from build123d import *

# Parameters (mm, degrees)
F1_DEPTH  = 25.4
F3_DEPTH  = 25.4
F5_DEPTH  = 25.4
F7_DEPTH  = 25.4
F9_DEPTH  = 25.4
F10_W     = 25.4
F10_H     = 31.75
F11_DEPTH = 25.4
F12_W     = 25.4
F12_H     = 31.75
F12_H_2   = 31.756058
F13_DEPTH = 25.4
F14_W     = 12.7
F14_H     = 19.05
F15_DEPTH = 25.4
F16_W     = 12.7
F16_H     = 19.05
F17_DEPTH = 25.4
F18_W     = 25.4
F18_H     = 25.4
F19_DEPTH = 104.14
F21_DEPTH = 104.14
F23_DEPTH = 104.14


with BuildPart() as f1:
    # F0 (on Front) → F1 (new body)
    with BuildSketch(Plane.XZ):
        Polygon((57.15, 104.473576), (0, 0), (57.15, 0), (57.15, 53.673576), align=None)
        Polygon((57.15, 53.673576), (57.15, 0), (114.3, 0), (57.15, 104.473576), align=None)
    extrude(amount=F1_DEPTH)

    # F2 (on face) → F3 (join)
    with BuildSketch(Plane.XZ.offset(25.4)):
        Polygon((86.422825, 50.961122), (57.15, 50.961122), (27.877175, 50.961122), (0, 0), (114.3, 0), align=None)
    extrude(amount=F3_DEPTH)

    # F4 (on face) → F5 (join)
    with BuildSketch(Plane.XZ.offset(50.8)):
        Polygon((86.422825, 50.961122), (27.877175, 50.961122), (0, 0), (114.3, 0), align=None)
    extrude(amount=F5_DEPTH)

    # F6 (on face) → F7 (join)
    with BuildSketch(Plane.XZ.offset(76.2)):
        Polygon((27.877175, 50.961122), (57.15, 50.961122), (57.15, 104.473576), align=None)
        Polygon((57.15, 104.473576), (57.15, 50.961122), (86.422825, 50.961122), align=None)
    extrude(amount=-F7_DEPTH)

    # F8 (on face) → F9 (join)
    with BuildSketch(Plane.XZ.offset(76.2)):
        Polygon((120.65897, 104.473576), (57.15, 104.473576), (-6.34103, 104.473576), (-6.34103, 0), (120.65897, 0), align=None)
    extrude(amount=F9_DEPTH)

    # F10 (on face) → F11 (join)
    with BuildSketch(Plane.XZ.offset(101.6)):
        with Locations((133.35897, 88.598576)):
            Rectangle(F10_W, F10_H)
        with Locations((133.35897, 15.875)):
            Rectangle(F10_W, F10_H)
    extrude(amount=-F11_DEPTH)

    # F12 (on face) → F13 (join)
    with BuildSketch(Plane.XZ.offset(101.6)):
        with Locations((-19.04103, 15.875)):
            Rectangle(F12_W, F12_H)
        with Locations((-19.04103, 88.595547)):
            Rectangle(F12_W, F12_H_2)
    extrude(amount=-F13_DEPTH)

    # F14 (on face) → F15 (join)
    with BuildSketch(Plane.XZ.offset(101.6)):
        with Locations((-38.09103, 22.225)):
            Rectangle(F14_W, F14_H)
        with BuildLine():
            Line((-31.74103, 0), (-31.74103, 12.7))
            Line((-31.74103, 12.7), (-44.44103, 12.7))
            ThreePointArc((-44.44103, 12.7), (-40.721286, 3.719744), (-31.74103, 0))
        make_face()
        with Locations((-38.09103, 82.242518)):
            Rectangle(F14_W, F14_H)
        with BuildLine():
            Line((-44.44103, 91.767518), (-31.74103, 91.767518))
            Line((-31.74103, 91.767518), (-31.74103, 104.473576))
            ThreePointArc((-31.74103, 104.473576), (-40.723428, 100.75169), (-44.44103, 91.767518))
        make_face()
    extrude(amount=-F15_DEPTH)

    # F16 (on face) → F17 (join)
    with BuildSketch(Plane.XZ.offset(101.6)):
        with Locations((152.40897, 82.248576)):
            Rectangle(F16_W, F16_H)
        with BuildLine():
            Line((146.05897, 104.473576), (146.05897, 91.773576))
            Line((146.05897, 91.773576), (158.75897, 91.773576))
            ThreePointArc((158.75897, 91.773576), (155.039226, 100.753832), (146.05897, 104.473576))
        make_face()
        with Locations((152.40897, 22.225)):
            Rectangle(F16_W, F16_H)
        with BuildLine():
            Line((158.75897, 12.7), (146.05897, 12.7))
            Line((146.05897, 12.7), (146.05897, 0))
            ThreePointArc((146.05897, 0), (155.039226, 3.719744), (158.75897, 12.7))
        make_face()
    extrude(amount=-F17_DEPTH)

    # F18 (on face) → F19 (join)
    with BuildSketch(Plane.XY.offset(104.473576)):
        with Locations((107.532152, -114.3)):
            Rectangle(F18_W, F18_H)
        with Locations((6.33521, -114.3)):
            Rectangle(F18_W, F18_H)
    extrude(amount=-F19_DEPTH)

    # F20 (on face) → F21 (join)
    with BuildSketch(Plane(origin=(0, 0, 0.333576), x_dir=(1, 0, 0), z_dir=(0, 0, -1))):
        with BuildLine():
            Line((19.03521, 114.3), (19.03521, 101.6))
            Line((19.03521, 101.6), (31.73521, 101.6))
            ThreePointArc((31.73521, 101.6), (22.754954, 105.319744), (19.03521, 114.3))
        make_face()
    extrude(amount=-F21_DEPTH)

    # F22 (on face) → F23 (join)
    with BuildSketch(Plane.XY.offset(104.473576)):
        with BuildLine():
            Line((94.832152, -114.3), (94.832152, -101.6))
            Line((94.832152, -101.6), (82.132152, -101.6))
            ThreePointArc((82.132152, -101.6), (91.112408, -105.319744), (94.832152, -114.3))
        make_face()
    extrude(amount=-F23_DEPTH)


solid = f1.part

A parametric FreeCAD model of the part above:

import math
import FreeCAD as App
import Part
import Sketcher
Q = App.Units.Quantity


def add_polygon(sketch, points):
    """Adds a closed chain of lines whose ends are joined by coincident constraints."""
    first, n = sketch.GeometryCount, len(points)
    for a, b in zip(points, points[1:] + points[:1]):
        sketch.addGeometry(Part.LineSegment(App.Vector(*a, 0), App.Vector(*b, 0)), False)
    for i in range(n):
        sketch.addConstraint(Sketcher.Constraint("Coincident", first + i, 2, first + (i + 1) % n, 1))

doc = App.newDocument("Part")
body = doc.addObject("PartDesign::Body", "Body")

sketch1 = body.newObject("Sketcher::SketchObject", "Sketch")
sketch1.AttachmentSupport = (doc.getObject("XZ_Plane"), [""])
sketch1.MapMode = "FlatFace"
add_polygon(sketch1, [(57, 104), (0, 0), (114, 0)])
sketch1.addConstraint(Sketcher.Constraint("Horizontal", 1))
sketch1.addConstraint(Sketcher.Constraint("Coincident", 0, 2, -1, 1))
sketch1.addConstraint(Sketcher.Constraint("Equal", 0, 2))
sketch1.addConstraint(Sketcher.Constraint("DistanceX", 1, 1, 1, 2, Q("4.5 in")))
sketch1.addConstraint(Sketcher.Constraint("Distance", 0, 119.083377))
pad1 = body.newObject("PartDesign::Pad", "Pad")
pad1.Profile = sketch1
pad1.Length = Q("1 in")

sketch2 = body.newObject("Sketcher::SketchObject", "Sketch001")
sketch2.AttachmentSupport = (doc.getObject("XZ_Plane"), [""])
sketch2.MapMode = "FlatFace"
sketch2.AttachmentOffset = App.Placement(App.Vector(0, 0, 1 * 25.4), App.Rotation())
add_polygon(sketch2, [(86, 51), (28, 51), (0, 0), (114, 0)])
sketch2.addConstraint(Sketcher.Constraint("Horizontal", 0))
sketch2.addConstraint(Sketcher.Constraint("Horizontal", 2))
sketch2.addConstraint(Sketcher.Constraint("Coincident", 1, 2, -1, 1))
sketch2.addConstraint(Sketcher.Constraint("Equal", 1, 3))
sketch2.addConstraint(Sketcher.Constraint("DistanceX", 2, 1, 2, 2, Q("4.5 in")))
sketch2.addConstraint(Sketcher.Constraint("DistanceX", 0, 2, 0, 1, 58.54565))
sketch2.addConstraint(Sketcher.Constraint("Distance", 1, 58.087631))
pad2 = body.newObject("PartDesign::Pad", "Pad001")
pad2.Profile = sketch2
pad2.Length = Q("1 in")

sketch3 = body.newObject("Sketcher::SketchObject", "Sketch002")
sketch3.AttachmentSupport = (doc.getObject("XZ_Plane"), [""])
sketch3.MapMode = "FlatFace"
sketch3.AttachmentOffset = App.Placement(App.Vector(0, 0, 2 * 25.4), App.Rotation())
add_polygon(sketch3, [(86, 51), (28, 51), (0, 0), (114, 0)])
sketch3.addConstraint(Sketcher.Constraint("Horizontal", 0))
sketch3.addConstraint(Sketcher.Constraint("Horizontal", 2))
sketch3.addConstraint(Sketcher.Constraint("Coincident", 1, 2, -1, 1))
sketch3.addConstraint(Sketcher.Constraint("Equal", 1, 3))
sketch3.addConstraint(Sketcher.Constraint("DistanceX", 2, 1, 2, 2, Q("4.5 in")))
sketch3.addConstraint(Sketcher.Constraint("DistanceX", 0, 2, 0, 1, 58.54565))
sketch3.addConstraint(Sketcher.Constraint("Distance", 1, 58.087631))
pad3 = body.newObject("PartDesign::Pad", "Pad002")
pad3.Profile = sketch3
pad3.Length = Q("1 in")

sketch4 = body.newObject("Sketcher::SketchObject", "Sketch003")
sketch4.AttachmentSupport = (doc.getObject("XZ_Plane"), [""])
sketch4.MapMode = "FlatFace"
sketch4.AttachmentOffset = App.Placement(App.Vector(0, 0, 3 * 25.4), App.Rotation())
add_polygon(sketch4, [(28, 51), (86, 51), (57, 104)])
sketch4.addConstraint(Sketcher.Constraint("Horizontal", 0))
sketch4.addConstraint(Sketcher.Constraint("Equal", 1, 2))
sketch4.addConstraint(Sketcher.Constraint("DistanceX", -1, 1, 1, 2, Q("2.25 in")))
sketch4.addConstraint(Sketcher.Constraint("DistanceX", 0, 1, 0, 2, 58.54565))
sketch4.addConstraint(Sketcher.Constraint("Distance", 1, 60.995746))
sketch4.addConstraint(Sketcher.Constraint("DistanceY", -1, 1, 0, 2, 50.961122))
pad4 = body.newObject("PartDesign::Pad", "Pad003")
pad4.Profile = sketch4
pad4.Length = Q("1 in")
pad4.Reversed = True

sketch5 = body.newObject("Sketcher::SketchObject", "Sketch004")
sketch5.AttachmentSupport = (doc.getObject("XZ_Plane"), [""])
sketch5.MapMode = "FlatFace"
sketch5.AttachmentOffset = App.Placement(App.Vector(0, 0, 3 * 25.4), App.Rotation())
add_polygon(sketch5, [(121, 104), (-6, 104), (-6, 0), (121, 0)])
sketch5.addConstraint(Sketcher.Constraint("Horizontal", 0))
sketch5.addConstraint(Sketcher.Constraint("Vertical", 1))
sketch5.addConstraint(Sketcher.Constraint("Horizontal", 2))
sketch5.addConstraint(Sketcher.Constraint("Vertical", 3))
sketch5.addConstraint(Sketcher.Constraint("PointOnObject", 1, 2, -1))
sketch5.addConstraint(Sketcher.Constraint("DistanceX", 0, 2, 0, 1, Q("5 in")))
sketch5.addConstraint(Sketcher.Constraint("DistanceY", 1, 2, 1, 1, 104.473576))
sketch5.addConstraint(Sketcher.Constraint("DistanceX", 0, 2, -1, 1, 6.34103))
pad5 = body.newObject("PartDesign::Pad", "Pad004")
pad5.Profile = sketch5
pad5.Length = Q("1 in")

sketch6 = body.newObject("Sketcher::SketchObject", "Sketch005")
sketch6.AttachmentSupport = (doc.getObject("XZ_Plane"), [""])
sketch6.MapMode = "FlatFace"
sketch6.AttachmentOffset = App.Placement(App.Vector(0, 0, 4 * 25.4), App.Rotation())
add_polygon(sketch6, [(121, 104), (121, 73), (146, 73), (146, 104)])
add_polygon(sketch6, [(121, 32), (121, 0), (146, 0), (146, 32)])
sketch6.addConstraint(Sketcher.Constraint("Vertical", 0))
sketch6.addConstraint(Sketcher.Constraint("Horizontal", 1))
sketch6.addConstraint(Sketcher.Constraint("Vertical", 2))
sketch6.addConstraint(Sketcher.Constraint("Horizontal", 3))
sketch6.addConstraint(Sketcher.Constraint("Vertical", 4))
sketch6.addConstraint(Sketcher.Constraint("Horizontal", 5))
sketch6.addConstraint(Sketcher.Constraint("Vertical", 6))
sketch6.addConstraint(Sketcher.Constraint("Horizontal", 7))
sketch6.addConstraint(Sketcher.Constraint("PointOnObject", 4, 2, -1))
sketch6.addConstraint(Sketcher.Constraint("Vertical", 3, 2, 4, 2))
sketch6.addConstraint(Sketcher.Constraint("Vertical", 2, 2, 5, 2))
sketch6.addConstraint(Sketcher.Constraint("Equal", 2, 4))
sketch6.addConstraint(Sketcher.Constraint("DistanceX", 1, 1, 1, 2, Q("1 in")))
sketch6.addConstraint(Sketcher.Constraint("DistanceY", 0, 2, 0, 1, Q("1.25 in")))
sketch6.addConstraint(Sketcher.Constraint("DistanceX", -1, 1, 0, 2, 120.65897))
sketch6.addConstraint(Sketcher.Constraint("DistanceY", -1, 1, 0, 2, 72.723576))
pad6 = body.newObject("PartDesign::Pad", "Pad005")
pad6.Profile = sketch6
pad6.Length = Q("1 in")
pad6.Reversed = True

sketch7 = body.newObject("Sketcher::SketchObject", "Sketch006")
sketch7.AttachmentSupport = (doc.getObject("XZ_Plane"), [""])
sketch7.MapMode = "FlatFace"
sketch7.AttachmentOffset = App.Placement(App.Vector(0, 0, 4 * 25.4), App.Rotation())
add_polygon(sketch7, [(-32, 32), (-32, 0), (-6, 0), (-6, 32)])
add_polygon(sketch7, [(-32, 104), (-32, 73), (-6, 73), (-6, 104)])
sketch7.addConstraint(Sketcher.Constraint("Vertical", 0))
sketch7.addConstraint(Sketcher.Constraint("Horizontal", 1))
sketch7.addConstraint(Sketcher.Constraint("Vertical", 2))
sketch7.addConstraint(Sketcher.Constraint("Horizontal", 3))
sketch7.addConstraint(Sketcher.Constraint("Vertical", 4))
sketch7.addConstraint(Sketcher.Constraint("Horizontal", 5))
sketch7.addConstraint(Sketcher.Constraint("Vertical", 6))
sketch7.addConstraint(Sketcher.Constraint("Horizontal", 7))
sketch7.addConstraint(Sketcher.Constraint("PointOnObject", 0, 2, -1))
sketch7.addConstraint(Sketcher.Constraint("Vertical", 3, 2, 4, 2))
sketch7.addConstraint(Sketcher.Constraint("Vertical", 2, 2, 5, 2))
sketch7.addConstraint(Sketcher.Constraint("DistanceX", 1, 1, 1, 2, Q("1 in")))
sketch7.addConstraint(Sketcher.Constraint("DistanceY", 0, 2, 0, 1, Q("1.25 in")))
sketch7.addConstraint(Sketcher.Constraint("DistanceY", 4, 2, 4, 1, 31.756058))
sketch7.addConstraint(Sketcher.Constraint("DistanceX", 0, 2, -1, 1, 31.74103))
sketch7.addConstraint(Sketcher.Constraint("DistanceY", -1, 1, 4, 2, 72.717518))
pad7 = body.newObject("PartDesign::Pad", "Pad006")
pad7.Profile = sketch7
pad7.Length = Q("1 in")
pad7.Reversed = True

sketch8 = body.newObject("Sketcher::SketchObject", "Sketch007")
sketch8.AttachmentSupport = (doc.getObject("XZ_Plane"), [""])
sketch8.MapMode = "FlatFace"
sketch8.AttachmentOffset = App.Placement(App.Vector(0, 0, 4 * 25.4), App.Rotation())
sketch8.addGeometry(Part.LineSegment(App.Vector(-44, 32, 0), App.Vector(-44, 13, 0)), False)
sketch8.addGeometry(Part.ArcOfCircle(Part.Circle(App.Vector(-32, 13, 0), App.Vector(0, 0, 1), 13), math.radians(-180), math.radians(-90)), False)
sketch8.addGeometry(Part.LineSegment(App.Vector(-32, 0, 0), App.Vector(-32, 32, 0)), False)
sketch8.addGeometry(Part.LineSegment(App.Vector(-32, 32, 0), App.Vector(-44, 32, 0)), False)
sketch8.addGeometry(Part.LineSegment(App.Vector(-44, 92, 0), App.Vector(-44, 73, 0)), False)
sketch8.addGeometry(Part.LineSegment(App.Vector(-44, 73, 0), App.Vector(-32, 73, 0)), False)
sketch8.addGeometry(Part.LineSegment(App.Vector(-32, 73, 0), App.Vector(-32, 104, 0)), False)
sketch8.addGeometry(Part.ArcOfCircle(Part.Circle(App.Vector(-32, 92, 0), App.Vector(0, 0, 1), 13), math.radians(90), math.radians(180)), False)
sketch8.addConstraint(Sketcher.Constraint("Tangent", 0, 2, 1, 1))
sketch8.addConstraint(Sketcher.Constraint("Coincident", 1, 2, 2, 1))
sketch8.addConstraint(Sketcher.Constraint("Coincident", 2, 2, 3, 1))
sketch8.addConstraint(Sketcher.Constraint("Coincident", 3, 2, 0, 1))
sketch8.addConstraint(Sketcher.Constraint("Coincident", 4, 2, 5, 1))
sketch8.addConstraint(Sketcher.Constraint("Coincident", 5, 2, 6, 1))
sketch8.addConstraint(Sketcher.Constraint("Coincident", 6, 2, 7, 1))
sketch8.addConstraint(Sketcher.Constraint("Coincident", 7, 2, 4, 1))
sketch8.addConstraint(Sketcher.Constraint("Vertical", 0))
sketch8.addConstraint(Sketcher.Constraint("Vertical", 2))
sketch8.addConstraint(Sketcher.Constraint("Horizontal", 3))
sketch8.addConstraint(Sketcher.Constraint("Vertical", 4))
sketch8.addConstraint(Sketcher.Constraint("Horizontal", 5))
sketch8.addConstraint(Sketcher.Constraint("Vertical", 6))
sketch8.addConstraint(Sketcher.Constraint("Equal", 1, 7))
sketch8.addConstraint(Sketcher.Constraint("PointOnObject", 1, 2, -1))
sketch8.addConstraint(Sketcher.Constraint("Vertical", 1, 3, 7, 3))
sketch8.addConstraint(Sketcher.Constraint("Vertical", 7, 3, 1, 2))
sketch8.addConstraint(Sketcher.Constraint("Vertical", 2, 2, 5, 2))
sketch8.addConstraint(Sketcher.Constraint("Equal", 0, 4))
sketch8.addConstraint(Sketcher.Constraint("Radius", 1, Q("0.5 in")))
sketch8.addConstraint(Sketcher.Constraint("DistanceY", 0, 2, 0, 1, Q("0.75 in")))
sketch8.addConstraint(Sketcher.Constraint("DistanceY", 6, 1, 6, 2, 31.756058))
sketch8.addConstraint(Sketcher.Constraint("DistanceX", 1, 3, -1, 1, 31.74103))
sketch8.addConstraint(Sketcher.Constraint("DistanceY", -1, 1, 4, 2, 72.717518))
pad8 = body.newObject("PartDesign::Pad", "Pad007")
pad8.Profile = sketch8
pad8.Length = Q("1 in")
pad8.Reversed = True

sketch9 = body.newObject("Sketcher::SketchObject", "Sketch008")
sketch9.AttachmentSupport = (doc.getObject("XZ_Plane"), [""])
sketch9.MapMode = "FlatFace"
sketch9.AttachmentOffset = App.Placement(App.Vector(0, 0, 4 * 25.4), App.Rotation())
sketch9.addGeometry(Part.LineSegment(App.Vector(146, 73, 0), App.Vector(159, 73, 0)), False)
sketch9.addGeometry(Part.LineSegment(App.Vector(159, 73, 0), App.Vector(159, 92, 0)), False)
sketch9.addGeometry(Part.ArcOfCircle(Part.Circle(App.Vector(146, 92, 0), App.Vector(0, 0, 1), 13), math.radians(0), math.radians(90)), False)
sketch9.addGeometry(Part.LineSegment(App.Vector(146, 104, 0), App.Vector(146, 73, 0)), False)
sketch9.addGeometry(Part.LineSegment(App.Vector(146, 32, 0), App.Vector(146, 0, 0)), False)
sketch9.addGeometry(Part.ArcOfCircle(Part.Circle(App.Vector(146, 13, 0), App.Vector(0, 0, 1), 13), math.radians(-90), math.radians(0)), False)
sketch9.addGeometry(Part.LineSegment(App.Vector(159, 13, 0), App.Vector(159, 32, 0)), False)
sketch9.addGeometry(Part.LineSegment(App.Vector(159, 32, 0), App.Vector(146, 32, 0)), False)
sketch9.addConstraint(Sketcher.Constraint("Coincident", 0, 2, 1, 1))
sketch9.addConstraint(Sketcher.Constraint("Tangent", 1, 2, 2, 1))
sketch9.addConstraint(Sketcher.Constraint("Coincident", 2, 2, 3, 1))
sketch9.addConstraint(Sketcher.Constraint("Coincident", 3, 2, 0, 1))
sketch9.addConstraint(Sketcher.Constraint("Coincident", 4, 2, 5, 1))
sketch9.addConstraint(Sketcher.Constraint("Tangent", 5, 2, 6, 1))
sketch9.addConstraint(Sketcher.Constraint("Coincident", 6, 2, 7, 1))
sketch9.addConstraint(Sketcher.Constraint("Coincident", 7, 2, 4, 1))
sketch9.addConstraint(Sketcher.Constraint("Horizontal", 0))
sketch9.addConstraint(Sketcher.Constraint("Vertical", 1))
sketch9.addConstraint(Sketcher.Constraint("Vertical", 3))
sketch9.addConstraint(Sketcher.Constraint("Vertical", 4))
sketch9.addConstraint(Sketcher.Constraint("Vertical", 6))
sketch9.addConstraint(Sketcher.Constraint("Horizontal", 7))
sketch9.addConstraint(Sketcher.Constraint("Equal", 2, 5))
sketch9.addConstraint(Sketcher.Constraint("PointOnObject", 4, 2, -1))
sketch9.addConstraint(Sketcher.Constraint("Vertical", 2, 3, 5, 3))
sketch9.addConstraint(Sketcher.Constraint("Vertical", 5, 3, 2, 2))
sketch9.addConstraint(Sketcher.Constraint("Vertical", 3, 2, 4, 2))
sketch9.addConstraint(Sketcher.Constraint("Equal", 3, 4))
sketch9.addConstraint(Sketcher.Constraint("Radius", 2, Q("0.5 in")))
sketch9.addConstraint(Sketcher.Constraint("DistanceY", 1, 1, 1, 2, Q("0.75 in")))
sketch9.addConstraint(Sketcher.Constraint("DistanceX", -1, 1, 2, 3, 146.05897))
sketch9.addConstraint(Sketcher.Constraint("DistanceY", -1, 1, 2, 3, 91.773576))
pad9 = body.newObject("PartDesign::Pad", "Pad008")
pad9.Profile = sketch9
pad9.Length = Q("1 in")
pad9.Reversed = True

sketch10 = body.newObject("Sketcher::SketchObject", "Sketch009")
sketch10.AttachmentSupport = (doc.getObject("XY_Plane"), [""])
sketch10.MapMode = "FlatFace"
sketch10.AttachmentOffset = App.Placement(App.Vector(0, 0, 104.473576), App.Rotation())
add_polygon(sketch10, [(95, -102), (95, -127), (120, -127), (120, -102)])
add_polygon(sketch10, [(-6, -102), (-6, -127), (19, -127), (19, -102)])
sketch10.addConstraint(Sketcher.Constraint("Vertical", 0))
sketch10.addConstraint(Sketcher.Constraint("Horizontal", 1))
sketch10.addConstraint(Sketcher.Constraint("Vertical", 2))
sketch10.addConstraint(Sketcher.Constraint("Horizontal", 3))
sketch10.addConstraint(Sketcher.Constraint("Vertical", 4))
sketch10.addConstraint(Sketcher.Constraint("Horizontal", 5))
sketch10.addConstraint(Sketcher.Constraint("Vertical", 6))
sketch10.addConstraint(Sketcher.Constraint("Horizontal", 7))
sketch10.addConstraint(Sketcher.Constraint("Horizontal", 1, 2, 4, 2))
sketch10.addConstraint(Sketcher.Constraint("Horizontal", 3, 2, 6, 2))
sketch10.addConstraint(Sketcher.Constraint("Equal", 3, 5))
sketch10.addConstraint(Sketcher.Constraint("Equal", 7, 0))
sketch10.addConstraint(Sketcher.Constraint("DistanceX", 1, 1, 1, 2, Q("1 in")))
sketch10.addConstraint(Sketcher.Constraint("DistanceY", 0, 2, -1, 1, Q("5 in")))
sketch10.addConstraint(Sketcher.Constraint("DistanceX", -1, 1, 0, 2, 94.832152))
sketch10.addConstraint(Sketcher.Constraint("DistanceX", 4, 2, -1, 1, 6.36479))
pad10 = body.newObject("PartDesign::Pad", "Pad009")
pad10.Profile = sketch10
pad10.Length = Q("4.1 in")
pad10.Reversed = True

sketch11 = body.newObject("Sketcher::SketchObject", "Sketch010")
sketch11.AttachmentSupport = (doc.getObject("XY_Plane"), [""])
sketch11.MapMode = "FlatFace"
sketch11.AttachmentOffset = App.Placement(App.Vector(0, 0, 0.333576), App.Rotation())
sketch11.addGeometry(Part.LineSegment(App.Vector(19, -114, 0), App.Vector(19, -102, 0)), False)
sketch11.addGeometry(Part.LineSegment(App.Vector(19, -102, 0), App.Vector(32, -102, 0)), False)
sketch11.addGeometry(Part.ArcOfCircle(Part.Circle(App.Vector(32, -114, 0), App.Vector(0, 0, 1), 13), math.radians(90), math.radians(180)), False)
sketch11.addConstraint(Sketcher.Constraint("Coincident", 0, 2, 1, 1))
sketch11.addConstraint(Sketcher.Constraint("Tangent", 1, 2, 2, 1))
sketch11.addConstraint(Sketcher.Constraint("Tangent", 2, 2, 0, 1))
sketch11.addConstraint(Sketcher.Constraint("Vertical", 0))
sketch11.addConstraint(Sketcher.Constraint("Horizontal", 1))
sketch11.addConstraint(Sketcher.Constraint("Radius", 2, Q("0.5 in")))
sketch11.addConstraint(Sketcher.Constraint("DistanceY", 0, 2, -1, 1, Q("4 in")))
sketch11.addConstraint(Sketcher.Constraint("DistanceX", -1, 1, 2, 3, 31.73521))
pad11 = body.newObject("PartDesign::Pad", "Pad010")
pad11.Profile = sketch11
pad11.Length = Q("4.1 in")

sketch12 = body.newObject("Sketcher::SketchObject", "Sketch011")
sketch12.AttachmentSupport = (doc.getObject("XY_Plane"), [""])
sketch12.MapMode = "FlatFace"
sketch12.AttachmentOffset = App.Placement(App.Vector(0, 0, 104.473576), App.Rotation())
sketch12.addGeometry(Part.LineSegment(App.Vector(95, -114, 0), App.Vector(95, -102, 0)), False)
sketch12.addGeometry(Part.LineSegment(App.Vector(95, -102, 0), App.Vector(82, -102, 0)), False)
sketch12.addGeometry(Part.ArcOfCircle(Part.Circle(App.Vector(82, -114, 0), App.Vector(0, 0, 1), 13), math.radians(0), math.radians(90)), False)
sketch12.addConstraint(Sketcher.Constraint("Coincident", 0, 2, 1, 1))
sketch12.addConstraint(Sketcher.Constraint("Tangent", 1, 2, 2, 2))
sketch12.addConstraint(Sketcher.Constraint("Tangent", 2, 1, 0, 1))
sketch12.addConstraint(Sketcher.Constraint("Vertical", 0))
sketch12.addConstraint(Sketcher.Constraint("Horizontal", 1))
sketch12.addConstraint(Sketcher.Constraint("Radius", 2, Q("0.5 in")))
sketch12.addConstraint(Sketcher.Constraint("DistanceY", 0, 2, -1, 1, Q("4 in")))
sketch12.addConstraint(Sketcher.Constraint("DistanceX", -1, 1, 2, 3, 82.132152))
pad12 = body.newObject("PartDesign::Pad", "Pad011")
pad12.Profile = sketch12
pad12.Length = Q("4.1 in")
pad12.Reversed = True

doc.recompute()
